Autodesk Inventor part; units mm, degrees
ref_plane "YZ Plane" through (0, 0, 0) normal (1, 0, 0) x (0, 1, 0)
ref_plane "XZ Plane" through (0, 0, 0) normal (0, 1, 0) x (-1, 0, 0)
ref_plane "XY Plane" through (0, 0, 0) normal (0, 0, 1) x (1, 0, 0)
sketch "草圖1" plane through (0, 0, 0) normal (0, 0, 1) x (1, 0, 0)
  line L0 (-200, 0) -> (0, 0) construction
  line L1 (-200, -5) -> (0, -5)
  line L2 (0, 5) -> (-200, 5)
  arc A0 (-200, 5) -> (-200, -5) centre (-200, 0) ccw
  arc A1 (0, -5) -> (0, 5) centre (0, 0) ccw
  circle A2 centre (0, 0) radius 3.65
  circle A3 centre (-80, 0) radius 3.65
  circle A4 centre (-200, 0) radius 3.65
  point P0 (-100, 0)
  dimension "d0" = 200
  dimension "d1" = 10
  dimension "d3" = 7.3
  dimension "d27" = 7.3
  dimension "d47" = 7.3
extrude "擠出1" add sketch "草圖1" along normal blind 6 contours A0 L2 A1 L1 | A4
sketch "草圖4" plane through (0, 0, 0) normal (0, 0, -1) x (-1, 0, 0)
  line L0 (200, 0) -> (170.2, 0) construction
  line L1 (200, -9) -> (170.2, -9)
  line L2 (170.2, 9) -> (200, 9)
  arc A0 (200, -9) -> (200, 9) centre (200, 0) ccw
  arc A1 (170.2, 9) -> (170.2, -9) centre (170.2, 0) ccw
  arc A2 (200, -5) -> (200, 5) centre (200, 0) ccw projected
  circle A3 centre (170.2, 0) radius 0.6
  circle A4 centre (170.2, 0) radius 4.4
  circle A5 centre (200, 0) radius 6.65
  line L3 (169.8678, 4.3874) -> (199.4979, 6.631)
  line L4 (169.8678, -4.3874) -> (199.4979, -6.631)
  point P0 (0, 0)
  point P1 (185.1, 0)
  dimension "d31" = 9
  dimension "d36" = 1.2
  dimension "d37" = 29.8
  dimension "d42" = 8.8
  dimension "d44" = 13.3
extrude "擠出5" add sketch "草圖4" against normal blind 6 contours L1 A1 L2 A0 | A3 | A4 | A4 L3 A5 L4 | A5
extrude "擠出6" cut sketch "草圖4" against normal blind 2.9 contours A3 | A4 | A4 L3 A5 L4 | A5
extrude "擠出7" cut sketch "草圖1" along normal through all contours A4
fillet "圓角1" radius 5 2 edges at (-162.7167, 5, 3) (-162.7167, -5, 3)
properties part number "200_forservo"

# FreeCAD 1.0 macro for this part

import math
import FreeCAD as App
import Part
import Sketcher

V = App.Vector


def edges_at(feature, points):
    """Names of the edges that pass closest to the given points."""
    edges = feature.Shape.Edges
    near = lambda p: min(range(len(edges)), key=lambda i: edges[i].distToShape(Part.Vertex(*p))[0])
    return sorted({f"Edge{near(p) + 1}" for p in points})

doc = App.newDocument("Part")
body = doc.addObject("PartDesign::Body", "Body")

sketch1 = body.newObject("Sketcher::SketchObject", "Sketch")
sketch1.AttachmentSupport = (doc.getObject("XY_Plane"), [""])
sketch1.MapMode = "FlatFace"
sketch1.addGeometry([
    Part.ArcOfCircle(Part.Circle(V(-200, 0, 0), V(0, 0, 1), 5), math.radians(90), math.radians(270)),
    Part.LineSegment(V(-200, -5, 0), V(0, -5, 0)),
    Part.ArcOfCircle(Part.Circle(V(0, 0, 0), V(0, 0, 1), 5), math.radians(-90), math.radians(90)),
    Part.LineSegment(V(0, 5, 0), V(-200, 5, 0)),
    Part.Circle(V(-80, 0, 0), V(0, 0, 1), 3.6),
    Part.Circle(V(0, 0, 0), V(0, 0, 1), 3.6),
], False)
sketch1.addConstraint([
    Sketcher.Constraint("Tangent", 0, 2, 1, 1),
    Sketcher.Constraint("Tangent", 1, 2, 2, 1),
    Sketcher.Constraint("Tangent", 2, 2, 3, 1),
    Sketcher.Constraint("Tangent", 3, 2, 0, 1),
    Sketcher.Constraint("Horizontal", 1),
    Sketcher.Constraint("Horizontal", 3),
    Sketcher.Constraint("Coincident", 2, 3, -1, 1),
    Sketcher.Constraint("Coincident", 5, 3, -1, 1),
    Sketcher.Constraint("Equal", 4, 5),
    Sketcher.Constraint("PointOnObject", 4, 3, -1),
    Sketcher.Constraint("Radius", 0, 5.0),
    Sketcher.Constraint("Diameter", 4, 7.3),
    Sketcher.Constraint("DistanceX", 1, 1, 1, 2, 200.0),
    Sketcher.Constraint("DistanceX", 4, 3, -1, 1, 80.0),
])
pad1 = body.newObject("PartDesign::Pad", "Pad")
pad1.Profile = sketch1
pad1.Length = 6

sketch2 = body.newObject("Sketcher::SketchObject", "Sketch001")
sketch2.AttachmentSupport = (doc.getObject("XY_Plane"), [""])
sketch2.MapMode = "FlatFace"
sketch2.addGeometry([
    Part.LineSegment(V(-170, -9, 0), V(-200, -9, 0)),
    Part.ArcOfCircle(Part.Circle(V(-200, 0, 0), V(0, 0, 1), 9), math.radians(90), math.radians(270)),
    Part.LineSegment(V(-200, 9, 0), V(-170, 9, 0)),
    Part.ArcOfCircle(Part.Circle(V(-170, 0, 0), V(0, 0, 1), 9), math.radians(-90), math.radians(90)),
], False)
sketch2.addConstraint([
    Sketcher.Constraint("Tangent", 0, 2, 1, 2),
    Sketcher.Constraint("Tangent", 1, 1, 2, 1),
    Sketcher.Constraint("Tangent", 2, 2, 3, 2),
    Sketcher.Constraint("Tangent", 3, 1, 0, 1),
    Sketcher.Constraint("Horizontal", 0),
    Sketcher.Constraint("Horizontal", 2),
    Sketcher.Constraint("PointOnObject", 1, 3, -1),
    Sketcher.Constraint("Radius", 1, 9.0),
    Sketcher.Constraint("DistanceX", 0, 2, 0, 1, 29.8),
    Sketcher.Constraint("DistanceX", 1, 3, -1, 1, 200.0),
])
pad2 = body.newObject("PartDesign::Pad", "Pad001")
pad2.Profile = sketch2
pad2.Length = 6

sketch3 = body.newObject("Sketcher::SketchObject", "Sketch002")
sketch3.AttachmentSupport = (doc.getObject("XY_Plane"), [""])
sketch3.MapMode = "FlatFace"
sketch3.addGeometry([
    Part.ArcOfCircle(Part.Circle(V(-170.2, 0, 0), V(0, 0, 1), 4.4), math.radians(-86), math.radians(86)),
    Part.LineSegment(V(-169.9, -4.4, 0), V(-199.5, -6.6, 0)),
    Part.ArcOfCircle(Part.Circle(V(-200, 0, 0), V(0, 0, 1), 6.7), math.radians(86), math.radians(274)),
    Part.LineSegment(V(-199.5, 6.6, 0), V(-169.9, 4.4, 0)),
], False)
sketch3.addConstraint([
    Sketcher.Constraint("Tangent", 0, 1, 1, 1),
    Sketcher.Constraint("Tangent", 1, 2, 2, 2),
    Sketcher.Constraint("Tangent", 2, 1, 3, 1),
    Sketcher.Constraint("Tangent", 3, 2, 0, 2),
    Sketcher.Constraint("Symmetric", 1, 2, 2, 1, -1),
    Sketcher.Constraint("Radius", 0, 4.4),
    Sketcher.Constraint("Radius", 2, 6.65),
    Sketcher.Constraint("DistanceX", 2, 3, 0, 3, 29.8),
    Sketcher.Constraint("DistanceX", 2, 3, -1, 1, 200.0),
])
pocket1 = body.newObject("PartDesign::Pocket", "Pocket")
pocket1.Profile = sketch3
pocket1.Length = 2.9
pocket1.Reversed = True

sketch4 = body.newObject("Sketcher::SketchObject", "Sketch003")
sketch4.AttachmentSupport = (doc.getObject("XY_Plane"), [""])
sketch4.MapMode = "FlatFace"
sketch4.addGeometry(Part.Circle(V(-200, 0, 0), V(0, 0, 1), 3.6), False)
sketch4.addConstraint([
    Sketcher.Constraint("PointOnObject", 0, 3, -1),
    Sketcher.Constraint("Diameter", 0, 7.3),
    Sketcher.Constraint("DistanceX", 0, 3, -1, 1, 200.0),
])
pocket2 = body.newObject("PartDesign::Pocket", "Pocket001")
pocket2.Profile = sketch4
pocket2.Type = "ThroughAll"
pocket2.Reversed = True
doc.recompute()

fillet = body.newObject("PartDesign::Fillet", "Fillet")
fillet.Base = (pocket2, edges_at(pocket2, [(-162.717, 5, 3), (-162.717, -5, 3)]))
fillet.Radius = 5

doc.recompute()
